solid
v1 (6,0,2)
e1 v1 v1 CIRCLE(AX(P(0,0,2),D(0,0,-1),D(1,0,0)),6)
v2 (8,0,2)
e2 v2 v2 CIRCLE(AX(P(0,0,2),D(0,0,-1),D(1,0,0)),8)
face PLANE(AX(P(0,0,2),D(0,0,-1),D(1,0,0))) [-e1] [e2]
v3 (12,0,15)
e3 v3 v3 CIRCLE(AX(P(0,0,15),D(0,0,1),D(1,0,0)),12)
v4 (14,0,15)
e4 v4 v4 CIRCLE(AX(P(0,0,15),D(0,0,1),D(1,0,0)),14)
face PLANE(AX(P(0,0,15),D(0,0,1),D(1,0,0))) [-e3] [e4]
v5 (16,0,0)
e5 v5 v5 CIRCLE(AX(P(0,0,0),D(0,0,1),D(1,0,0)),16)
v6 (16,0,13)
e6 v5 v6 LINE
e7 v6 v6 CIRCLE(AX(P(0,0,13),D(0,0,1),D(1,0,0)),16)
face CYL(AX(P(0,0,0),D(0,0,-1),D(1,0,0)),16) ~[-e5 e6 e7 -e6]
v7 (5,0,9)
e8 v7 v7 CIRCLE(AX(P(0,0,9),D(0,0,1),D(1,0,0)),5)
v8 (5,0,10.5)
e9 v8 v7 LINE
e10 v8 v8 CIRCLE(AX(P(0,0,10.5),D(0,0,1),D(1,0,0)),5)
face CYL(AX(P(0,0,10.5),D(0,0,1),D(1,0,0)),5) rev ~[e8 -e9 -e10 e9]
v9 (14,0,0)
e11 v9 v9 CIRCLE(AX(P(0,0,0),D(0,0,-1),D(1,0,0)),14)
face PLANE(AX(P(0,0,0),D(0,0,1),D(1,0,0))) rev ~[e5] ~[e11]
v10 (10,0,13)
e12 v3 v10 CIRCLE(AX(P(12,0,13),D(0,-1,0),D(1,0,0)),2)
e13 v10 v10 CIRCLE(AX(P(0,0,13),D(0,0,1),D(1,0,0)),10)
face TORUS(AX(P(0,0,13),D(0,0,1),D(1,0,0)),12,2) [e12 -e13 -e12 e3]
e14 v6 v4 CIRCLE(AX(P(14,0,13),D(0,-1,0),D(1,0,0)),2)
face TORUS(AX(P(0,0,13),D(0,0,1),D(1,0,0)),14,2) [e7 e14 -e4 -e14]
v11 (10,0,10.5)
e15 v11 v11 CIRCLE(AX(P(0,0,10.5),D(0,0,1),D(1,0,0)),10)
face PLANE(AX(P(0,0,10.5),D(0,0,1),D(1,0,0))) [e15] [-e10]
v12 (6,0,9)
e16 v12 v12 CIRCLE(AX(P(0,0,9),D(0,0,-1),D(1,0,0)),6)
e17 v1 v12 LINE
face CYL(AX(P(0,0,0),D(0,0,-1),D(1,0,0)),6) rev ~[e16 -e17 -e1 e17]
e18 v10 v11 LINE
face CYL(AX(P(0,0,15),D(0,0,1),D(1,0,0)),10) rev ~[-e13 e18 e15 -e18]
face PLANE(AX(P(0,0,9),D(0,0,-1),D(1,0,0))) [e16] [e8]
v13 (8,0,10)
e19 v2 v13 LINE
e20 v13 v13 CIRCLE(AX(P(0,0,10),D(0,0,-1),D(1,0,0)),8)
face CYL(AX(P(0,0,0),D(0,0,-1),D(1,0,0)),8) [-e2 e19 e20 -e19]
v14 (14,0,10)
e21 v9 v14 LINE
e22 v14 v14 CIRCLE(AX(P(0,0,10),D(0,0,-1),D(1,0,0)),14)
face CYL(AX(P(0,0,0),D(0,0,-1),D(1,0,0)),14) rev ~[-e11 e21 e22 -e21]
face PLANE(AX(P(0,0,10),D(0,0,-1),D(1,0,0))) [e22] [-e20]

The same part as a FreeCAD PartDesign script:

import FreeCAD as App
import Part
import Sketcher
Q = App.Units.Quantity


def edges_at(feature, points):
    """Names of the edges that pass closest to the given points."""
    edges = feature.Shape.Edges
    near = lambda p: min(range(len(edges)), key=lambda i: edges[i].distToShape(Part.Vertex(*p))[0])
    return sorted({f"Edge{near(p) + 1}" for p in points})

doc = App.newDocument("Part")
body = doc.addObject("PartDesign::Body", "Body")

sketch1 = doc.addObject("Sketcher::SketchObject", "Sketch")
body.addObject(sketch1)
sketch1.AttachmentSupport = (doc.XY_Plane, [""])
sketch1.MapMode = "FlatFace"
sketch1.addGeometry(Part.Circle(App.Vector(0, 0, 0), App.Vector(0, 0, 1), 16), False)
sketch1.addConstraint(Sketcher.Constraint("Coincident", 0, 3, -1, 1))
sketch1.addConstraint(Sketcher.Constraint("Diameter", 0, Q("32 mm")))
pad1 = doc.addObject("PartDesign::Pad", "Pad")
body.addObject(pad1)
pad1.Profile = sketch1
pad1.Length = 15

sketch2 = doc.addObject("Sketcher::SketchObject", "Sketch001")
body.addObject(sketch2)
sketch2.AttachmentSupport = (doc.XY_Plane, [""])
sketch2.MapMode = "FlatFace"
sketch2.AttachmentOffset = App.Placement(App.Vector(0, 0, 15), App.Rotation())
sketch2.addGeometry(Part.Circle(App.Vector(0, 0, 0), App.Vector(0, 0, 1), 10), False)
sketch2.addConstraint(Sketcher.Constraint("Coincident", 0, 3, -1, 1))
sketch2.addConstraint(Sketcher.Constraint("Diameter", 0, Q("20 mm")))
pocket1 = doc.addObject("PartDesign::Pocket", "Pocket")
body.addObject(pocket1)
pocket1.Profile = sketch2
pocket1.Length = 4.5

sketch3 = doc.addObject("Sketcher::SketchObject", "Sketch002")
body.addObject(sketch3)
sketch3.AttachmentSupport = (doc.XY_Plane, [""])
sketch3.MapMode = "FlatFace"
sketch3.addGeometry(Part.Circle(App.Vector(0, 0, 0), App.Vector(0, 0, 1), 14), False)
sketch3.addGeometry(Part.Circle(App.Vector(0, 0, 0), App.Vector(0, 0, 1), 8), False)
sketch3.addConstraint(Sketcher.Constraint("Coincident", 0, 3, -1, 1))
sketch3.addConstraint(Sketcher.Constraint("Coincident", 1, 3, -1, 1))
sketch3.addConstraint(Sketcher.Constraint("Diameter", 0, Q("28 mm")))
sketch3.addConstraint(Sketcher.Constraint("Diameter", 1, Q("16 mm")))
pocket2 = doc.addObject("PartDesign::Pocket", "Pocket001")
body.addObject(pocket2)
pocket2.Profile = sketch3
pocket2.Length = 10
pocket2.Reversed = True

sketch4 = doc.addObject("Sketcher::SketchObject", "Sketch003")
body.addObject(sketch4)
sketch4.AttachmentSupport = (doc.XY_Plane, [""])
sketch4.MapMode = "FlatFace"
sketch4.addGeometry(Part.Circle(App.Vector(0, 0, 0), App.Vector(0, 0, 1), 6), False)
sketch4.addConstraint(Sketcher.Constraint("Coincident", 0, 3, -1, 1))
sketch4.addConstraint(Sketcher.Constraint("Diameter", 0, Q("12 mm")))
pocket3 = doc.addObject("PartDesign::Pocket", "Pocket002")
body.addObject(pocket3)
pocket3.Profile = sketch4
pocket3.Length = 9
pocket3.Reversed = True

sketch5 = doc.addObject("Sketcher::SketchObject", "Sketch004")
body.addObject(sketch5)
sketch5.AttachmentSupport = (doc.XY_Plane, [""])
sketch5.MapMode = "FlatFace"
sketch5.AttachmentOffset = App.Placement(App.Vector(0, 0, 10.5), App.Rotation())
sketch5.addGeometry(Part.Circle(App.Vector(0, 0, 0), App.Vector(0, 0, 1), 5), False)
sketch5.addConstraint(Sketcher.Constraint("Coincident", 0, 3, -1, 1))
sketch5.addConstraint(Sketcher.Constraint("Diameter", 0, Q("10 mm")))
pocket4 = doc.addObject("PartDesign::Pocket", "Pocket003")
body.addObject(pocket4)
pocket4.Profile = sketch5
pocket4.Length = 25

sketch6 = doc.addObject("Sketcher::SketchObject", "Sketch005")
body.addObject(sketch6)
sketch6.AttachmentSupport = (doc.XY_Plane, [""])
sketch6.MapMode = "FlatFace"
sketch6.addGeometry(Part.Circle(App.Vector(0, 0, 0), App.Vector(0, 0, 1), 8), False)
sketch6.addGeometry(Part.Circle(App.Vector(0, 0, 0), App.Vector(0, 0, 1), 6), False)
sketch6.addConstraint(Sketcher.Constraint("Coincident", 0, 3, -1, 1))
sketch6.addConstraint(Sketcher.Constraint("Coincident", 1, 3, -1, 1))
sketch6.addConstraint(Sketcher.Constraint("Diameter", 0, Q("16 mm")))
sketch6.addConstraint(Sketcher.Constraint("Diameter", 1, Q("12 mm")))
pocket5 = doc.addObject("PartDesign::Pocket", "Pocket004")
body.addObject(pocket5)
pocket5.Profile = sketch6
pocket5.Length = 2
pocket5.Reversed = True
doc.recompute()

fillet = doc.addObject("PartDesign::Fillet", "Fillet")
body.addObject(fillet)
fillet.Base = (pocket5, edges_at(pocket5, [(-16, 0, 15), (-10, 0, 15)]))
fillet.Radius = 2

doc.recompute()
